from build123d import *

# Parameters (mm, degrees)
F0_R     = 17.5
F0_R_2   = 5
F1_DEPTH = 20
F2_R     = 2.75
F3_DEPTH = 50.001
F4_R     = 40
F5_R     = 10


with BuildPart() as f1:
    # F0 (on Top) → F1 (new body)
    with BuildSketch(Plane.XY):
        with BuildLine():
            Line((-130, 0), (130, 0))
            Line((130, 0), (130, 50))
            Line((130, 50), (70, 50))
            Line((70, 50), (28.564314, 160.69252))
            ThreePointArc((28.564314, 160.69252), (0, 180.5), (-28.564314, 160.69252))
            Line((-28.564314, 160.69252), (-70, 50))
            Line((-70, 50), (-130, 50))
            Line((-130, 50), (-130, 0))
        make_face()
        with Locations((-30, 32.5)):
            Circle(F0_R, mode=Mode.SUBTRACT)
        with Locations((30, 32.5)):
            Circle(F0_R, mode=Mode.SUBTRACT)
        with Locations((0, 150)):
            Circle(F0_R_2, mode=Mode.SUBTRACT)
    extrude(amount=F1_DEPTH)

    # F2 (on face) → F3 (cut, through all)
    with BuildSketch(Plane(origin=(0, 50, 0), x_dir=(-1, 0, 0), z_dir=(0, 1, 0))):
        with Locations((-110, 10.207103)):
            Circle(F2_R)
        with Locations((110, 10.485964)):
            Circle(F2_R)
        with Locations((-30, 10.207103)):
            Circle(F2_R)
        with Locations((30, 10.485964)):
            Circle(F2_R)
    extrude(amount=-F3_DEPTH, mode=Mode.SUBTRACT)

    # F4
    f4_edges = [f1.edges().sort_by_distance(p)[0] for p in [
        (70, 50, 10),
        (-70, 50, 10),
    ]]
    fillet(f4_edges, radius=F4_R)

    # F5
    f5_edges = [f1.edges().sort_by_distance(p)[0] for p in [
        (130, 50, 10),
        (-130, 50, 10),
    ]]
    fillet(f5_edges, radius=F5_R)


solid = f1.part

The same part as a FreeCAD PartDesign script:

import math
import FreeCAD as App
import Part
import Sketcher
Q = App.Units.Quantity


def edges_at(feature, points):
    """Names of the edges that pass closest to the given points."""
    edges = feature.Shape.Edges
    near = lambda p: min(range(len(edges)), key=lambda i: edges[i].distToShape(Part.Vertex(*p))[0])
    return sorted({f"Edge{near(p) + 1}" for p in points})

doc = App.newDocument("Part")
body = doc.addObject("PartDesign::Body", "Body")

sketch1 = body.newObject("Sketcher::SketchObject", "Sketch")
sketch1.AttachmentSupport = (doc.getObject("XY_Plane"), [""])
sketch1.MapMode = "FlatFace"
sketch1.addGeometry(Part.LineSegment(App.Vector(-130, 0, 0), App.Vector(130, 0, 0)), False)
sketch1.addGeometry(Part.LineSegment(App.Vector(130, 0, 0), App.Vector(130, 50, 0)), False)
sketch1.addGeometry(Part.LineSegment(App.Vector(130, 50, 0), App.Vector(70, 50, 0)), False)
sketch1.addGeometry(Part.LineSegment(App.Vector(70, 50, 0), App.Vector(29, 161, 0)), False)
sketch1.addGeometry(Part.ArcOfCircle(Part.Circle(App.Vector(0, 150, 0), App.Vector(0, 0, 1), 31), math.radians(21), math.radians(159)), False)
sketch1.addGeometry(Part.LineSegment(App.Vector(-29, 161, 0), App.Vector(-70, 50, 0)), False)
sketch1.addGeometry(Part.LineSegment(App.Vector(-70, 50, 0), App.Vector(-130, 50, 0)), False)
sketch1.addGeometry(Part.LineSegment(App.Vector(-130, 50, 0), App.Vector(-130, 0, 0)), False)
sketch1.addGeometry(Part.Circle(App.Vector(-30, 32, 0), App.Vector(0, 0, 1), 18), False)
sketch1.addGeometry(Part.Circle(App.Vector(30, 32, 0), App.Vector(0, 0, 1), 18), False)
sketch1.addGeometry(Part.Circle(App.Vector(0, 150, 0), App.Vector(0, 0, 1), 5), False)
sketch1.addConstraint(Sketcher.Constraint("Coincident", 0, 2, 1, 1))
sketch1.addConstraint(Sketcher.Constraint("Coincident", 1, 2, 2, 1))
sketch1.addConstraint(Sketcher.Constraint("Coincident", 2, 2, 3, 1))
sketch1.addConstraint(Sketcher.Constraint("Tangent", 3, 2, 4, 1))
sketch1.addConstraint(Sketcher.Constraint("Tangent", 4, 2, 5, 1))
sketch1.addConstraint(Sketcher.Constraint("Coincident", 5, 2, 6, 1))
sketch1.addConstraint(Sketcher.Constraint("Coincident", 6, 2, 7, 1))
sketch1.addConstraint(Sketcher.Constraint("Coincident", 7, 2, 0, 1))
sketch1.addConstraint(Sketcher.Constraint("Horizontal", 0))
sketch1.addConstraint(Sketcher.Constraint("Vertical", 1))
sketch1.addConstraint(Sketcher.Constraint("Horizontal", 2))
sketch1.addConstraint(Sketcher.Constraint("Horizontal", 6))
sketch1.addConstraint(Sketcher.Constraint("Vertical", 7))
sketch1.addConstraint(Sketcher.Constraint("Coincident", 10, 3, 4, 3))
sketch1.addConstraint(Sketcher.Constraint("Equal", 8, 9))
sketch1.addConstraint(Sketcher.Constraint("Symmetric", 0, 2, 7, 2, -1, 1))
sketch1.addConstraint(Sketcher.Constraint("Symmetric", 8, 3, 9, 3, -2))
sketch1.addConstraint(Sketcher.Constraint("Symmetric", 3, 2, 4, 2, -2))
sketch1.addConstraint(Sketcher.Constraint("Horizontal", 2, 2, 5, 2))
sketch1.addConstraint(Sketcher.Constraint("Diameter", 8, Q("35 mm")))
sketch1.addConstraint(Sketcher.Constraint("Diameter", 10, Q("10 mm")))
sketch1.addConstraint(Sketcher.Constraint("Radius", 4, Q("30.5 mm")))
sketch1.addConstraint(Sketcher.Constraint("DistanceX", 0, 1, 0, 2, Q("260 mm")))
sketch1.addConstraint(Sketcher.Constraint("DistanceX", 2, 2, 2, 1, Q("60 mm")))
sketch1.addConstraint(Sketcher.Constraint("DistanceY", 1, 1, 1, 2, Q("50 mm")))
sketch1.addConstraint(Sketcher.Constraint("DistanceY", -1, 1, 4, 3, Q("150 mm")))
sketch1.addConstraint(Sketcher.Constraint("DistanceX", 8, 3, -1, 1, Q("30 mm")))
sketch1.addConstraint(Sketcher.Constraint("DistanceY", -1, 1, 8, 3, Q("32.5 mm")))
pad1 = body.newObject("PartDesign::Pad", "Pad")
pad1.Profile = sketch1
pad1.Length = 20

sketch2 = body.newObject("Sketcher::SketchObject", "Sketch001")
sketch2.AttachmentSupport = (doc.getObject("XZ_Plane"), [""])
sketch2.MapMode = "FlatFace"
sketch2.AttachmentOffset = App.Placement(App.Vector(0, 0, -50), App.Rotation())
sketch2.addGeometry(Part.Circle(App.Vector(110, 10.2, 0), App.Vector(0, 0, 1), 2.8), False)
sketch2.addGeometry(Part.Circle(App.Vector(-110, 10.5, 0), App.Vector(0, 0, 1), 2.8), False)
sketch2.addGeometry(Part.Circle(App.Vector(30, 10.2, 0), App.Vector(0, 0, 1), 2.8), False)
sketch2.addGeometry(Part.Circle(App.Vector(-30, 10.5, 0), App.Vector(0, 0, 1), 2.8), False)
sketch2.addConstraint(Sketcher.Constraint("Equal", 0, 1))
sketch2.addConstraint(Sketcher.Constraint("Equal", 1, 2))
sketch2.addConstraint(Sketcher.Constraint("Equal", 2, 3))
sketch2.addConstraint(Sketcher.Constraint("Horizontal", 0, 3, 2, 3))
sketch2.addConstraint(Sketcher.Constraint("Horizontal", 1, 3, 3, 3))
sketch2.addConstraint(Sketcher.Constraint("Diameter", 0, Q("5.5 mm")))
sketch2.addConstraint(Sketcher.Constraint("DistanceX", -1, 1, 0, 3, Q("110 mm")))
sketch2.addConstraint(Sketcher.Constraint("DistanceX", 1, 3, -1, 1, Q("110 mm")))
sketch2.addConstraint(Sketcher.Constraint("DistanceX", -1, 1, 2, 3, Q("30 mm")))
sketch2.addConstraint(Sketcher.Constraint("DistanceX", 3, 3, -1, 1, Q("30 mm")))
sketch2.addConstraint(Sketcher.Constraint("DistanceY", 0, 3, 1, 3, Q("0.278861 mm")))
sketch2.addConstraint(Sketcher.Constraint("DistanceY", -1, 1, 0, 3, Q("10.207103 mm")))
pocket1 = body.newObject("PartDesign::Pocket", "Pocket")
pocket1.Profile = sketch2
pocket1.Type = "ThroughAll"
pocket1.Reversed = True
doc.recompute()

fillet = body.newObject("PartDesign::Fillet", "Fillet")
fillet.Base = (pocket1, edges_at(pocket1, [(70, 50, 10), (-70, 50, 10)]))
fillet.Radius = 40
doc.recompute()

fillet2 = body.newObject("PartDesign::Fillet", "Fillet001")
fillet2.Base = (fillet, edges_at(fillet, [(130, 50, 10), (-130, 50, 10)]))
fillet2.Radius = 10

doc.recompute()
